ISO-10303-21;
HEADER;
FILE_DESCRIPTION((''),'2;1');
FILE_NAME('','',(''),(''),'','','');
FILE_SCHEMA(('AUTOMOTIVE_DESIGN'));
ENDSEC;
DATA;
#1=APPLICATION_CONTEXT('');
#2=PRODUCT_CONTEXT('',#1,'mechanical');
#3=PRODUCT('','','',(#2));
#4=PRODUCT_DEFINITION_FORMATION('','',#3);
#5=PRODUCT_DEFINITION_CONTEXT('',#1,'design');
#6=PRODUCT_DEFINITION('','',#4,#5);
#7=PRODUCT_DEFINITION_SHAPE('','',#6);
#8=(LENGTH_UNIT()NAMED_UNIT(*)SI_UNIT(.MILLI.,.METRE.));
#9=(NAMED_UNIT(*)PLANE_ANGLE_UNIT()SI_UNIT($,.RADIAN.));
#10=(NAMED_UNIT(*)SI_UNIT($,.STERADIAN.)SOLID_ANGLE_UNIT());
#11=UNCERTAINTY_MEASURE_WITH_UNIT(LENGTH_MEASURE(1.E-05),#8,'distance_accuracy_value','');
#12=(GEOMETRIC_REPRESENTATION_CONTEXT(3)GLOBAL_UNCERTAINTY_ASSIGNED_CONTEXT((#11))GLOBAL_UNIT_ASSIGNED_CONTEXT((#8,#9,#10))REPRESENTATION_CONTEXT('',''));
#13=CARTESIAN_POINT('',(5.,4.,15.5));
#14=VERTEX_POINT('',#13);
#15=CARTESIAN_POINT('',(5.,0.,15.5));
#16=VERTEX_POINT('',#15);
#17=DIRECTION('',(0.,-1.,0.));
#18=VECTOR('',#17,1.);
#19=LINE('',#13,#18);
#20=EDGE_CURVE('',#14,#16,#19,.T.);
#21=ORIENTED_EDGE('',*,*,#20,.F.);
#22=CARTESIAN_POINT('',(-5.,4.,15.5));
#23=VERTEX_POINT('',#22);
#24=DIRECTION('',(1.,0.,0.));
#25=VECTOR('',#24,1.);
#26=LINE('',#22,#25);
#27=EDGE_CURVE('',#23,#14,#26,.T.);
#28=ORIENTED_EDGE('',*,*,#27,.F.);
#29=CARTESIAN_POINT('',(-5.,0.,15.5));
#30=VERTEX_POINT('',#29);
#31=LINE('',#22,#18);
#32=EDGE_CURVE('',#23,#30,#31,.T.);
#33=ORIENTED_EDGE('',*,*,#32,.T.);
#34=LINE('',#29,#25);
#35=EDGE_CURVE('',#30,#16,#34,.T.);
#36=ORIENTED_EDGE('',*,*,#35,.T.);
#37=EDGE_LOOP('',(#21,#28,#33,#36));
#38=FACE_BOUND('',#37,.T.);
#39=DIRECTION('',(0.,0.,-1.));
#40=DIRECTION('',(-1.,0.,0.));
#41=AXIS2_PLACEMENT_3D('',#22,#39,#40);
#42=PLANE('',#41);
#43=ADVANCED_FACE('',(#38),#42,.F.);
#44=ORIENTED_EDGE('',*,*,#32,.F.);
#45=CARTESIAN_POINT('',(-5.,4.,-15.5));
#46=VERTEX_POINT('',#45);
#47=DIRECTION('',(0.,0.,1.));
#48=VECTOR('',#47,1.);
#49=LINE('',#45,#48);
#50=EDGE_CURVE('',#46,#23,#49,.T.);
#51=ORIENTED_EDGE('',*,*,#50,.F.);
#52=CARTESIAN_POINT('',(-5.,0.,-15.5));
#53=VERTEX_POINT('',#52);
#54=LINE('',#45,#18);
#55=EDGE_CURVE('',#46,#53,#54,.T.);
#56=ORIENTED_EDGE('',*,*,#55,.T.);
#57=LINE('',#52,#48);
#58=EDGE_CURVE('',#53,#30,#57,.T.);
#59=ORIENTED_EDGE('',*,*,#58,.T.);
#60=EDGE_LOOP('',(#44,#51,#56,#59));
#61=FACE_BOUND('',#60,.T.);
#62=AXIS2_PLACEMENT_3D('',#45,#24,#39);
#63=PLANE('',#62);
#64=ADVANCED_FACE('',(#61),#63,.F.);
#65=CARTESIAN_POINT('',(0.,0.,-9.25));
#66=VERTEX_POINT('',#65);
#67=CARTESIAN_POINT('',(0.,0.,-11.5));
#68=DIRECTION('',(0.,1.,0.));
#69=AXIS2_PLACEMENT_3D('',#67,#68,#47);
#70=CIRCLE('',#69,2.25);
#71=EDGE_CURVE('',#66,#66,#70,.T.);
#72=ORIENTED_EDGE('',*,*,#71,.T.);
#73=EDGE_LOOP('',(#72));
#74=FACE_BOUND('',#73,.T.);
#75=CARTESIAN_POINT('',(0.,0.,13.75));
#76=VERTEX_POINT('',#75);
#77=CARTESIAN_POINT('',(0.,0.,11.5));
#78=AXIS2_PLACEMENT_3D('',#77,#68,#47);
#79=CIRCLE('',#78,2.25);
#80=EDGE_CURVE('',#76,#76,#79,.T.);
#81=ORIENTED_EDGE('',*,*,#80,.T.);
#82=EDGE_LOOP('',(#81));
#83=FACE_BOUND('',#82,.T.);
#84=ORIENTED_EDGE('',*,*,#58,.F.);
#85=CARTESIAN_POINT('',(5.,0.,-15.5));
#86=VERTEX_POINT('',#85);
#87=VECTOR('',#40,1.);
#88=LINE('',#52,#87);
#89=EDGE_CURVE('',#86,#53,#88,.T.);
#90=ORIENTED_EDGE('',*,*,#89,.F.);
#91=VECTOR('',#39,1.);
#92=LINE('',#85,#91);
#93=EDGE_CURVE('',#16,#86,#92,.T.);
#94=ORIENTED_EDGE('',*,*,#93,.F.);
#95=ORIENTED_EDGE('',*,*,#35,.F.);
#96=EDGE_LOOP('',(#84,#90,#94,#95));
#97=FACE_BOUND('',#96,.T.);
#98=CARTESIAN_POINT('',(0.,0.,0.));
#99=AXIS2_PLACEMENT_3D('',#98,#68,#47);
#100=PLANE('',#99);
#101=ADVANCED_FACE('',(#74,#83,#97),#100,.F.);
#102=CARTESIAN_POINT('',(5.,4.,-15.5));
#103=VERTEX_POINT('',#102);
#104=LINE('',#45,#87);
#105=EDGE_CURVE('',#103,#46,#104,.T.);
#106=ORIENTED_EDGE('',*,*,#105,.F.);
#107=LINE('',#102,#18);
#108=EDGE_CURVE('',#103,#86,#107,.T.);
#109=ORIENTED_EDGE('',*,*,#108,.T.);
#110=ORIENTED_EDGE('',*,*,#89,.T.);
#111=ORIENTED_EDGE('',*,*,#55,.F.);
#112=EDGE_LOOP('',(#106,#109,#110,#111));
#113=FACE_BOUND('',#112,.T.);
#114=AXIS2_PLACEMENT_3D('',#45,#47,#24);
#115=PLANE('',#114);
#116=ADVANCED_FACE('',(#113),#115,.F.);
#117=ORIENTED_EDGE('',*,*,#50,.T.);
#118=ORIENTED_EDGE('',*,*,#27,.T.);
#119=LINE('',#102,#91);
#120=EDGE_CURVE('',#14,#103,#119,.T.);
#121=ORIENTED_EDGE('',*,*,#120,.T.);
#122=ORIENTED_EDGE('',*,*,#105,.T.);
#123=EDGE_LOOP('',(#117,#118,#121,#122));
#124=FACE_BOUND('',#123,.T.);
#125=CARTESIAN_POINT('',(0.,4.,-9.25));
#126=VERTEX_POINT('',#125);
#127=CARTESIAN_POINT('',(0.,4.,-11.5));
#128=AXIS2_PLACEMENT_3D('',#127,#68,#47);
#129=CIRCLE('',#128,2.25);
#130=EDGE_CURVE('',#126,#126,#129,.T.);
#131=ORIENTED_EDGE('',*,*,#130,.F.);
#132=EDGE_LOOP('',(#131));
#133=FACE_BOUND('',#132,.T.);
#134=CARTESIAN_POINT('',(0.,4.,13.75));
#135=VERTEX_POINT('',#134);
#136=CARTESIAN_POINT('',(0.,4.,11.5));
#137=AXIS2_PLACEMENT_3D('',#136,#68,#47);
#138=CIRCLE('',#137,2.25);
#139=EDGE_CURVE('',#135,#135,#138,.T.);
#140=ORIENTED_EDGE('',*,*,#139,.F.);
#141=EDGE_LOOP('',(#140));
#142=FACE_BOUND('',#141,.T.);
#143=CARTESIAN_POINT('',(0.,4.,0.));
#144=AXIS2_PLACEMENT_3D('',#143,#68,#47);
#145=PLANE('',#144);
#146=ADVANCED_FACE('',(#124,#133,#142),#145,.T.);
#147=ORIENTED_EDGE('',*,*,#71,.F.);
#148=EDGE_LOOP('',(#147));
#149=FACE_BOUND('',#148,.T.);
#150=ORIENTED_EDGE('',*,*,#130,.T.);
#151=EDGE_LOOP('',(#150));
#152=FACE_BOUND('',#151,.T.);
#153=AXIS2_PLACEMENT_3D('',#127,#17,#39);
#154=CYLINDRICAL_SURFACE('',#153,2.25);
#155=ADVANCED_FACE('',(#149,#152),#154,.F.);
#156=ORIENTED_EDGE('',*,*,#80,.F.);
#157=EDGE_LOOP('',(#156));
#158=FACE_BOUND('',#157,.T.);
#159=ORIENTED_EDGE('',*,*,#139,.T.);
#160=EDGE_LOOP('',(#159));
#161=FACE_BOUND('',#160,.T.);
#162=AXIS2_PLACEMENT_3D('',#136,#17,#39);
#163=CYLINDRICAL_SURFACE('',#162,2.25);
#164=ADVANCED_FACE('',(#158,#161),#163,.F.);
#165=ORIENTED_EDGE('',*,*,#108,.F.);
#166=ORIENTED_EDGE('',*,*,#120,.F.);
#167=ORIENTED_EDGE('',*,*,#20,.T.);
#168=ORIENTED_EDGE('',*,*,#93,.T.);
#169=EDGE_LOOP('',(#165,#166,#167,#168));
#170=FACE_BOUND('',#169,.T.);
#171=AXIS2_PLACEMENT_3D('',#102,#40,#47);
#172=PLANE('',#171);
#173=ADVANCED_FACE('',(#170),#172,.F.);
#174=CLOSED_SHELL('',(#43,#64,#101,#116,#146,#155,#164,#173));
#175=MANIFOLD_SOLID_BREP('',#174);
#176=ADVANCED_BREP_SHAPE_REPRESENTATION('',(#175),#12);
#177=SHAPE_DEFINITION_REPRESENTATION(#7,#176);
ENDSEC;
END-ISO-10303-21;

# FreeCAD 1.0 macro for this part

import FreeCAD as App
import Part
import Sketcher

V = App.Vector

doc = App.newDocument("Part")
body = doc.addObject("PartDesign::Body", "Body")

sketch1 = doc.addObject("Sketcher::SketchObject", "Sketch")
body.addObject(sketch1)
sketch1.AttachmentSupport = (doc.XZ_Plane, [""])
sketch1.MapMode = "FlatFace"
sketch1.addGeometry([
    Part.LineSegment(V(-5, -15.5, 0), V(-5, 15.5, 0)),
    Part.LineSegment(V(-5, 15.5, 0), V(5, 15.5, 0)),
    Part.LineSegment(V(5, 15.5, 0), V(5, -15.5, 0)),
    Part.LineSegment(V(5, -15.5, 0), V(-5, -15.5, 0)),
    Part.Circle(V(0, 11.5, 0), V(0, 0, 1), 2.25),
    Part.Circle(V(0, -11.5, 0), V(0, 0, 1), 2.25),
], False)
sketch1.addConstraint([
    Sketcher.Constraint("Coincident", 0, 2, 1, 1),
    Sketcher.Constraint("Coincident", 1, 2, 2, 1),
    Sketcher.Constraint("Coincident", 2, 2, 3, 1),
    Sketcher.Constraint("Coincident", 3, 2, 0, 1),
    Sketcher.Constraint("Vertical", 0),
    Sketcher.Constraint("Horizontal", 1),
    Sketcher.Constraint("Vertical", 2),
    Sketcher.Constraint("Horizontal", 3),
    Sketcher.Constraint("Equal", 4, 5),
    Sketcher.Constraint("Symmetric", 4, 3, 5, 3, -1, 1),
    Sketcher.Constraint("Symmetric", 0, 2, 2, 2, -1, 1),
    Sketcher.Constraint("PointOnObject", 4, 3, -2),
    Sketcher.Constraint("Diameter", 4, 4.5),
    Sketcher.Constraint("DistanceX", 1, 1, 1, 2, 10.0),
    Sketcher.Constraint("DistanceY", 0, 1, 0, 2, 31.0),
    Sketcher.Constraint("DistanceY", 5, 3, 4, 3, 23.0),
])
pad1 = doc.addObject("PartDesign::Pad", "Pad")
body.addObject(pad1)
pad1.Profile = sketch1
pad1.Length = 4
pad1.Reversed = True

doc.recompute()
